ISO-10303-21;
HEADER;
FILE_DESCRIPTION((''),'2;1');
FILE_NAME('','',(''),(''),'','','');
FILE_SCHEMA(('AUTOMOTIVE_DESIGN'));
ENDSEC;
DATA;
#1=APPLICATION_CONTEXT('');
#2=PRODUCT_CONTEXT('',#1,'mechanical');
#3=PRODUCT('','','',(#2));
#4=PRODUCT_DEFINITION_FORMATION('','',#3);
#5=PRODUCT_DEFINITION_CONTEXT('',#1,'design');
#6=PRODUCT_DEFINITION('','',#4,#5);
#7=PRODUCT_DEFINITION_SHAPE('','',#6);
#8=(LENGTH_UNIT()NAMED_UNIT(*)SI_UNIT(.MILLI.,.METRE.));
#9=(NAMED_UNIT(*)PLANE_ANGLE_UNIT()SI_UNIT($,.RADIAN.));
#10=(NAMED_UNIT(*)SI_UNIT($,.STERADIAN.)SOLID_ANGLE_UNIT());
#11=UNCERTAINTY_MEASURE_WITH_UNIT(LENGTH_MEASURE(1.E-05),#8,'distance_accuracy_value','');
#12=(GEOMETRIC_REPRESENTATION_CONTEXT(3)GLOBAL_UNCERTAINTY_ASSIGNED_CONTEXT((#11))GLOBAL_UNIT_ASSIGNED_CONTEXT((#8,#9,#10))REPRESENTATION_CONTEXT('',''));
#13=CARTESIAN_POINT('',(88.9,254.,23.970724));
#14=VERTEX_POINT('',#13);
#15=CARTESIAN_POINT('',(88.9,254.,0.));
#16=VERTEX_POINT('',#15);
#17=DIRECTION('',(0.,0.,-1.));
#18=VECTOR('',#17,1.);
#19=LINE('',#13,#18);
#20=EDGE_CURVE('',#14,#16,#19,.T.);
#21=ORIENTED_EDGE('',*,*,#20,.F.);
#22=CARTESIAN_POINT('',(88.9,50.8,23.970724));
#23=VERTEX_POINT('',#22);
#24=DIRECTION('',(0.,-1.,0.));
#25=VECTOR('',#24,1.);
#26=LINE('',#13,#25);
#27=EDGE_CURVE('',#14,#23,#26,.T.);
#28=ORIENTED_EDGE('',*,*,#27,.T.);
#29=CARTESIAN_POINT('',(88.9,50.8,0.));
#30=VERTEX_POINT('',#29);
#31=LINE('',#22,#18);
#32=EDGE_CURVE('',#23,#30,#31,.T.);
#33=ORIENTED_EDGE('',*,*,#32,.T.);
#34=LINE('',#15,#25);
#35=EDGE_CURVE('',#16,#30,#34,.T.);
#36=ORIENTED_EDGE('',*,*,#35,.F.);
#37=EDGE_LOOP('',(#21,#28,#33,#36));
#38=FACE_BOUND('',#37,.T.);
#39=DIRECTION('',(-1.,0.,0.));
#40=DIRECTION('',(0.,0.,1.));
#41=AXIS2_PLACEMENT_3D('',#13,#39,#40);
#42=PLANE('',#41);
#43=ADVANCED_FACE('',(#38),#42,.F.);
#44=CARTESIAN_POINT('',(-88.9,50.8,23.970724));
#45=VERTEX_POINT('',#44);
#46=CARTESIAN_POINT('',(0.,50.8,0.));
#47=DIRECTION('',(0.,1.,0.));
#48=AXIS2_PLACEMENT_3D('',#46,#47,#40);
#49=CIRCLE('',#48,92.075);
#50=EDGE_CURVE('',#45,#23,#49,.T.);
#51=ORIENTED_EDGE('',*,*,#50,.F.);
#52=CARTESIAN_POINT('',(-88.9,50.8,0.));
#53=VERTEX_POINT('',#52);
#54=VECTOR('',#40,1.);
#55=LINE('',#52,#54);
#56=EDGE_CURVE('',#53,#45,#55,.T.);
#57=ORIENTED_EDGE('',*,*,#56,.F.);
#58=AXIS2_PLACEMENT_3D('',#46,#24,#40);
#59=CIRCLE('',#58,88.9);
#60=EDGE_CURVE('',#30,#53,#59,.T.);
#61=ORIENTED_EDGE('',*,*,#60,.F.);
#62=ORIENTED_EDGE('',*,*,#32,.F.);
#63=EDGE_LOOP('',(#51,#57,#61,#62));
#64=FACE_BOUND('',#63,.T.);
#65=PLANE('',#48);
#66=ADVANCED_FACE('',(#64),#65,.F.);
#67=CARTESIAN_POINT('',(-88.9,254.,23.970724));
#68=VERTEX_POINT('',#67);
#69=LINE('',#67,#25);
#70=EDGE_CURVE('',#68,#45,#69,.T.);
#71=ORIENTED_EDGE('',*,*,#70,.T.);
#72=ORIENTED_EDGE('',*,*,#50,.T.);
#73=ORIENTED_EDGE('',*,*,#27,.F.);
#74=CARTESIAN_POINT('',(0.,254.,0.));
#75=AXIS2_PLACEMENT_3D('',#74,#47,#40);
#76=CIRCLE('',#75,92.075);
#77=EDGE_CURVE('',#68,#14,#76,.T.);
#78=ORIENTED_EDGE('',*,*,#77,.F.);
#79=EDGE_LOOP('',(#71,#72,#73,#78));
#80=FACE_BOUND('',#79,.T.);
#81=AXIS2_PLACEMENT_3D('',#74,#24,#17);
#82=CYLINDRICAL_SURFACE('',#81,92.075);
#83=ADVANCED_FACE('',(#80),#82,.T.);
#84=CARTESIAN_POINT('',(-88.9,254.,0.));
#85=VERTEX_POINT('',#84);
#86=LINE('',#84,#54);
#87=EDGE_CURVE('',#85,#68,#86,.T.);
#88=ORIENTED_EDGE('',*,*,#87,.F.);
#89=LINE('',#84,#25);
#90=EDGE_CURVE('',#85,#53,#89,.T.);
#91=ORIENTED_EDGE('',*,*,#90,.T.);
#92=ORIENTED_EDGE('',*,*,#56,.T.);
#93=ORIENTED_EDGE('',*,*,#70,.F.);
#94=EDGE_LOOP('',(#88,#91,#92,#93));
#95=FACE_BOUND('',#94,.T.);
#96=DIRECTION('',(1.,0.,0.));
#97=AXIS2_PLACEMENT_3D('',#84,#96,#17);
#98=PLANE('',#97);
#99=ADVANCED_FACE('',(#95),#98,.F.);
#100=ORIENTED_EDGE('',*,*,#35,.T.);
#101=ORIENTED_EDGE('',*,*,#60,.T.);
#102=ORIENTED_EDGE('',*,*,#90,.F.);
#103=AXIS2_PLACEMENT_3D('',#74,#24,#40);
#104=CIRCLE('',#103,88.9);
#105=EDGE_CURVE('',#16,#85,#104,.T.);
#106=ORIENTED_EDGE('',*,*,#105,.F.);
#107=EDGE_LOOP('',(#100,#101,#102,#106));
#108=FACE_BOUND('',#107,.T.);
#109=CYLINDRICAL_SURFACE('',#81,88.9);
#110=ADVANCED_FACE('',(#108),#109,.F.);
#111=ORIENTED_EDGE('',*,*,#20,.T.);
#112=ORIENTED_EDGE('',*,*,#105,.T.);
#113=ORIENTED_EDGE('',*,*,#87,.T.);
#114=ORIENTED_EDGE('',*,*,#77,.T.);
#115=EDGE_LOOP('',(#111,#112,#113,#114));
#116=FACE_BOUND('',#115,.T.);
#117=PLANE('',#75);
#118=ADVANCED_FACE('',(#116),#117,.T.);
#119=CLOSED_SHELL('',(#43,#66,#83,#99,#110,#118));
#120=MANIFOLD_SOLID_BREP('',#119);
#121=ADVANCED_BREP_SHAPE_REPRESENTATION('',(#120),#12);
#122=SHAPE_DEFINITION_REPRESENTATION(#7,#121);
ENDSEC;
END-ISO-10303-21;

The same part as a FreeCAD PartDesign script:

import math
import FreeCAD as App
import Part
import Sketcher
Q = App.Units.Quantity

doc = App.newDocument("Part")
body = doc.addObject("PartDesign::Body", "Body")

# Sketch on XZ plane
sketch1 = body.newObject("Sketcher::SketchObject", "Sketch")
sketch1.AttachmentSupport = (doc.getObject("XZ_Plane"), [""])
sketch1.MapMode = "FlatFace"
sketch1.AttachmentOffset = App.Placement(App.Vector(0, 0, -2 * 25.4), App.Rotation())
sketch1.addGeometry([
    Part.LineSegment(App.Vector(89, 24, 0), App.Vector(89, 0, 0)),
    Part.ArcOfCircle(Part.Circle(App.Vector(0, 0, 0), App.Vector(0, 0, 1), 89), math.radians(0), math.radians(180)),
    Part.LineSegment(App.Vector(-89, 0, 0), App.Vector(-89, 24, 0)),
    Part.ArcOfCircle(Part.Circle(App.Vector(0, 0, 0), App.Vector(0, 0, 1), 92), math.radians(15), math.radians(165)),
], False)
sketch1.addConstraint([
    Sketcher.Constraint("Tangent", 0, 2, 1, 1),
    Sketcher.Constraint("Tangent", 1, 2, 2, 1),
    Sketcher.Constraint("Coincident", 2, 2, 3, 2),
    Sketcher.Constraint("Coincident", 3, 1, 0, 1),
    Sketcher.Constraint("Vertical", 0),
    Sketcher.Constraint("Vertical", 2),
    Sketcher.Constraint("Coincident", 1, 3, -1, 1),
    Sketcher.Constraint("Coincident", 3, 3, -1, 1),
    Sketcher.Constraint("Radius", 1, Q("3.5 in")),
    Sketcher.Constraint("Radius", 3, Q("3.625 in")),
])
pad1 = body.newObject("PartDesign::Pad", "Pad")
pad1.Profile = sketch1
pad1.Length = Q("8 in")
pad1.Reversed = True

doc.recompute()
